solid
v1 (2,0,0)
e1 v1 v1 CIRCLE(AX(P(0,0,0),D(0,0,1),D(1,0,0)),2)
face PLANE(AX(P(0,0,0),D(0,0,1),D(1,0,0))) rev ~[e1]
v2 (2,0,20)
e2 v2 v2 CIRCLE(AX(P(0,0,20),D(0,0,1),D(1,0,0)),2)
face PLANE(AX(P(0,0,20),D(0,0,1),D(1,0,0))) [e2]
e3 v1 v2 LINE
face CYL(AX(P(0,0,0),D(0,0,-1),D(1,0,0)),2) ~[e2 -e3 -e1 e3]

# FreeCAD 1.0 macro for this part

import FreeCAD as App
import Part
import Sketcher

V = App.Vector
Q = App.Units.Quantity

doc = App.newDocument("Part")
body = doc.addObject("PartDesign::Body", "Body")

sketch1 = body.newObject("Sketcher::SketchObject", "Sketch")
sketch1.AttachmentSupport = (doc.getObject("XY_Plane"), [""])
sketch1.MapMode = "FlatFace"
sketch1.addGeometry(Part.Circle(V(0, 0, 0), V(0, 0, 1), 2), False)
sketch1.addConstraint([
    Sketcher.Constraint("Coincident", 0, 3, -1, 1),
    Sketcher.Constraint("Diameter", 0, Q("4 mm")),
])
pad1 = body.newObject("PartDesign::Pad", "Pad")
pad1.Profile = sketch1
pad1.Length = 20

doc.recompute()
